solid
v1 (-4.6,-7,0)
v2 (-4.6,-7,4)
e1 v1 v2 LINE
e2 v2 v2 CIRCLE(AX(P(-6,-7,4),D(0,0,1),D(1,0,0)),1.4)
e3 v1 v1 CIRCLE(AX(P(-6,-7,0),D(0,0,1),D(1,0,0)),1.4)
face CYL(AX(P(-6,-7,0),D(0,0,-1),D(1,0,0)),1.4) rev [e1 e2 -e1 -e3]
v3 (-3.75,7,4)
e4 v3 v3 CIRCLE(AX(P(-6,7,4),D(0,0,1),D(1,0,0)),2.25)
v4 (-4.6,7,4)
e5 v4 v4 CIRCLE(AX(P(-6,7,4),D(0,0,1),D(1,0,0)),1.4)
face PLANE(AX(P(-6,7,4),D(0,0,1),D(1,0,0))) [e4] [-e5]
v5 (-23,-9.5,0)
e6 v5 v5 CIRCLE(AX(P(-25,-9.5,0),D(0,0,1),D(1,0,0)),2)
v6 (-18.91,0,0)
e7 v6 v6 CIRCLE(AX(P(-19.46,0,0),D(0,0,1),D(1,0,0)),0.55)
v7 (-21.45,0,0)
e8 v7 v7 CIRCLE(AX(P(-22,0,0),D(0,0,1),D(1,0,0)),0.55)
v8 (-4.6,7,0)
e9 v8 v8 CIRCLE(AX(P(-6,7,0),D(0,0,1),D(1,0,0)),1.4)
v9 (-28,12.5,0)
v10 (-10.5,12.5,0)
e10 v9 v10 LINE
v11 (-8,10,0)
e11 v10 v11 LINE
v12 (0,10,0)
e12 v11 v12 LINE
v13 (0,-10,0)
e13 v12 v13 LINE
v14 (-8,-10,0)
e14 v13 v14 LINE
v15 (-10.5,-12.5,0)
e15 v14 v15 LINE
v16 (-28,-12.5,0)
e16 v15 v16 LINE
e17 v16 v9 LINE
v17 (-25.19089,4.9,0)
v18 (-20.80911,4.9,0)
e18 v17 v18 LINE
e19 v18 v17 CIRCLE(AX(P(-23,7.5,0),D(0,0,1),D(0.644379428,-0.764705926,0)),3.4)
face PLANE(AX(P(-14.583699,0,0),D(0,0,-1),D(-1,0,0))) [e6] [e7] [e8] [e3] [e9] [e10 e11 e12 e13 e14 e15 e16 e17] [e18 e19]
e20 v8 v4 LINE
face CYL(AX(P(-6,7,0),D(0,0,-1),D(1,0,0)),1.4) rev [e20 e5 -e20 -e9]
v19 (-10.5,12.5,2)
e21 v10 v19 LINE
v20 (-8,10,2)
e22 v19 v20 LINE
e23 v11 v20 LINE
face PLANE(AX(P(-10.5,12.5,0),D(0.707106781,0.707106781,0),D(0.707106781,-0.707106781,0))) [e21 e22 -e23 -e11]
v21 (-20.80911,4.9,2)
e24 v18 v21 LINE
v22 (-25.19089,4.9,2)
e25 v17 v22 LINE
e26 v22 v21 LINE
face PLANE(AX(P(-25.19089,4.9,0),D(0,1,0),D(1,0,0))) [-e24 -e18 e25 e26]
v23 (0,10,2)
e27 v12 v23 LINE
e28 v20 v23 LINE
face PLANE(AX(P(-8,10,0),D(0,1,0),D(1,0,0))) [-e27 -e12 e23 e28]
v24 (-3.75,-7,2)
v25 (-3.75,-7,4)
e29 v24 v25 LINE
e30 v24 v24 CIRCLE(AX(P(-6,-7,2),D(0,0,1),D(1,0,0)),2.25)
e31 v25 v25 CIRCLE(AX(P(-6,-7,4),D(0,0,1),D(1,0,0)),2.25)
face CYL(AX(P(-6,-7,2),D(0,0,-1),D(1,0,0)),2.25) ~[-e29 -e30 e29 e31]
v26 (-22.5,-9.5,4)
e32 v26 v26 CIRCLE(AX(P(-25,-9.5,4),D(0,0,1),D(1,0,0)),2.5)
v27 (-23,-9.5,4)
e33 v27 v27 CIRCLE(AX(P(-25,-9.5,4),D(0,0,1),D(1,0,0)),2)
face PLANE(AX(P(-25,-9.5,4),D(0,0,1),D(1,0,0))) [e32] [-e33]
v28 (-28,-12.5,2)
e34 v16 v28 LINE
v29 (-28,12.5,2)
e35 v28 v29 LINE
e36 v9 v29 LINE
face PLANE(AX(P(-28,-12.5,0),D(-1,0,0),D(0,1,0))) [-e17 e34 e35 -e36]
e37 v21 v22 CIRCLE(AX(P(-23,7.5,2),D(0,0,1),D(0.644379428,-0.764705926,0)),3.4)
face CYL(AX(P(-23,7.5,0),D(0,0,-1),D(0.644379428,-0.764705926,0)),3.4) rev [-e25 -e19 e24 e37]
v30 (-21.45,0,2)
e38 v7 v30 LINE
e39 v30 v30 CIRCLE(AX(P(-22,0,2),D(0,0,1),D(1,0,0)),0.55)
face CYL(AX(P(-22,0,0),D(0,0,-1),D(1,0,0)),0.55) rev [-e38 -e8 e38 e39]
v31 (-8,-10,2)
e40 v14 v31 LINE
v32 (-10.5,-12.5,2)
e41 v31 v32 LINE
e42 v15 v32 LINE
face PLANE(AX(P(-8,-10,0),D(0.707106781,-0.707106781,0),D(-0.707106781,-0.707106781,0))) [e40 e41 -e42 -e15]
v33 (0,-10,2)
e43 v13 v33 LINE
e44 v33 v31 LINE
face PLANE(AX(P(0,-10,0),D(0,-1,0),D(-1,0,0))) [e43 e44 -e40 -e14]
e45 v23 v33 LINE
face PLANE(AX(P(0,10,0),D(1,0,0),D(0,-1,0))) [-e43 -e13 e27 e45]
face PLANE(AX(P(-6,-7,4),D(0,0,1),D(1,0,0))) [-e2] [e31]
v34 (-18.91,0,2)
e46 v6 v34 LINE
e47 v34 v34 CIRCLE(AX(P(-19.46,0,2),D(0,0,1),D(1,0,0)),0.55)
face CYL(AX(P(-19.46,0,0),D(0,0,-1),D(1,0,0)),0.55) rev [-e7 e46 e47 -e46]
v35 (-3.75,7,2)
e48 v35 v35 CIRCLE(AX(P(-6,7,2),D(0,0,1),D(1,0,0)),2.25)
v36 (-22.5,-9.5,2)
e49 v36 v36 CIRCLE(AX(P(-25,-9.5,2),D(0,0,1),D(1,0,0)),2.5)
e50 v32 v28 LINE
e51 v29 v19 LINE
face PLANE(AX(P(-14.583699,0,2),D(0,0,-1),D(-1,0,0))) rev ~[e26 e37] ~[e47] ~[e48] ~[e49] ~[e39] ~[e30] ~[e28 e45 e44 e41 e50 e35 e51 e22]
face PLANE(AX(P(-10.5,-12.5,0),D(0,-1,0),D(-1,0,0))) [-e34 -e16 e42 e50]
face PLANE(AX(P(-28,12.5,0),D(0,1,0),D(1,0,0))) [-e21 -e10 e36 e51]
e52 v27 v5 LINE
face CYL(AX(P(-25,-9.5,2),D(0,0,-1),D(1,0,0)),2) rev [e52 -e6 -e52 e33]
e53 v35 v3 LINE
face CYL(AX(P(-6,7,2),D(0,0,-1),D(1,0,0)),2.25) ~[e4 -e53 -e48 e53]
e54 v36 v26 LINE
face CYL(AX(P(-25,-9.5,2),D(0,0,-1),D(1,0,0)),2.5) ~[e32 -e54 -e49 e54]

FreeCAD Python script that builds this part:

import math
import FreeCAD as App
import Part
import Sketcher
Q = App.Units.Quantity

doc = App.newDocument("Part")
body = doc.addObject("PartDesign::Body", "Body")

sketch1 = doc.addObject("Sketcher::SketchObject", "Sketch")
body.addObject(sketch1)
sketch1.AttachmentSupport = (doc.XY_Plane, [""])
sketch1.MapMode = "FlatFace"
sketch1.addGeometry([
    Part.LineSegment(App.Vector(0, -10, 0), App.Vector(0, 10, 0)),
    Part.LineSegment(App.Vector(0, 10, 0), App.Vector(-8, 10, 0)),
    Part.LineSegment(App.Vector(-8, 10, 0), App.Vector(-10.5, 12.5, 0)),
    Part.LineSegment(App.Vector(-10.5, 12.5, 0), App.Vector(-28, 12.5, 0)),
    Part.LineSegment(App.Vector(-28, 12.5, 0), App.Vector(-28, -12.5, 0)),
    Part.LineSegment(App.Vector(-28, -12.5, 0), App.Vector(-10.5, -12.5, 0)),
    Part.LineSegment(App.Vector(-10.5, -12.5, 0), App.Vector(-8, -10, 0)),
    Part.LineSegment(App.Vector(-8, -10, 0), App.Vector(0, -10, 0)),
    Part.Circle(App.Vector(-6, -7, 0), App.Vector(0, 0, 1), 1.4),
    Part.Circle(App.Vector(-25, -9.5, 0), App.Vector(0, 0, 1), 2),
    Part.Circle(App.Vector(-6, 7, 0), App.Vector(0, 0, 1), 1.4),
    Part.Circle(App.Vector(-19.5, 0, 0), App.Vector(0, 0, 1), 0.6),
    Part.Circle(App.Vector(-22, 0, 0), App.Vector(0, 0, 1), 0.6),
    Part.LineSegment(App.Vector(-20.8, 4.9, 0), App.Vector(-25.2, 4.9, 0)),
    Part.ArcOfCircle(Part.Circle(App.Vector(-23, 7.5, 0), App.Vector(0, 0, 1), 3.4), math.radians(-50), math.radians(230)),
], False)
sketch1.addConstraint([
    Sketcher.Constraint("Coincident", 0, 2, 1, 1),
    Sketcher.Constraint("Coincident", 1, 2, 2, 1),
    Sketcher.Constraint("Coincident", 2, 2, 3, 1),
    Sketcher.Constraint("Coincident", 3, 2, 4, 1),
    Sketcher.Constraint("Coincident", 4, 2, 5, 1),
    Sketcher.Constraint("Coincident", 5, 2, 6, 1),
    Sketcher.Constraint("Coincident", 6, 2, 7, 1),
    Sketcher.Constraint("Coincident", 7, 2, 0, 1),
    Sketcher.Constraint("Coincident", 13, 1, 14, 1),
    Sketcher.Constraint("Coincident", 14, 2, 13, 2),
    Sketcher.Constraint("Vertical", 0),
    Sketcher.Constraint("Horizontal", 1),
    Sketcher.Constraint("Horizontal", 3),
    Sketcher.Constraint("Vertical", 4),
    Sketcher.Constraint("Horizontal", 5),
    Sketcher.Constraint("Horizontal", 7),
    Sketcher.Constraint("Horizontal", 13),
    Sketcher.Constraint("Equal", 8, 10),
    Sketcher.Constraint("Equal", 11, 12),
    Sketcher.Constraint("Symmetric", 0, 2, 7, 2, -1, 1),
    Sketcher.Constraint("Symmetric", 8, 3, 10, 3, -1),
    Sketcher.Constraint("Symmetric", 2, 2, 5, 2, -1),
    Sketcher.Constraint("PointOnObject", 11, 3, -1),
    Sketcher.Constraint("PointOnObject", 12, 3, -1),
    Sketcher.Constraint("Perpendicular", 2, 6),
    Sketcher.Constraint("Vertical", 1, 2, 6, 2),
    Sketcher.Constraint("Diameter", 9, Q("4 mm")),
    Sketcher.Constraint("Diameter", 8, Q("2.8 mm")),
    Sketcher.Constraint("Diameter", 11, Q("1.1 mm")),
    Sketcher.Constraint("Radius", 14, Q("3.4 mm")),
    Sketcher.Constraint("DistanceX", 1, 2, 1, 1, Q("8 mm")),
    Sketcher.Constraint("DistanceY", 0, 1, 0, 2, Q("20 mm")),
    Sketcher.Constraint("DistanceY", 4, 2, 4, 1, Q("25 mm")),
    Sketcher.Constraint("DistanceX", 3, 2, 3, 1, Q("17.5 mm")),
    Sketcher.Constraint("DistanceX", 8, 3, -1, 1, Q("6 mm")),
    Sketcher.Constraint("DistanceY", 8, 3, -1, 1, Q("7 mm")),
    Sketcher.Constraint("DistanceX", 9, 3, -1, 1, Q("25 mm")),
    Sketcher.Constraint("DistanceX", 12, 3, -1, 1, Q("22 mm")),
    Sketcher.Constraint("DistanceX", 14, 3, -1, 1, Q("23 mm")),
    Sketcher.Constraint("DistanceY", 9, 3, 14, 3, Q("17 mm")),
    Sketcher.Constraint("DistanceY", 14, 3, 2, 2, Q("5 mm")),
    Sketcher.Constraint("DistanceY", -1, 1, 13, 1, Q("4.9 mm")),
    Sketcher.Constraint("DistanceX", 11, 3, -1, 1, Q("19.46 mm")),
])
pad1 = doc.addObject("PartDesign::Pad", "Pad")
body.addObject(pad1)
pad1.Profile = sketch1
pad1.Length = 2

sketch2 = doc.addObject("Sketcher::SketchObject", "Sketch001")
body.addObject(sketch2)
sketch2.AttachmentSupport = (doc.XY_Plane, [""])
sketch2.MapMode = "FlatFace"
sketch2.AttachmentOffset = App.Placement(App.Vector(0, 0, 2), App.Rotation())
sketch2.addGeometry([
    Part.Circle(App.Vector(-25, -9.5, 0), App.Vector(0, 0, 1), 2.5),
    Part.Circle(App.Vector(-25, -9.5, 0), App.Vector(0, 0, 1), 2),
    Part.Circle(App.Vector(-6, -7, 0), App.Vector(0, 0, 1), 2.2),
    Part.Circle(App.Vector(-6, -7, 0), App.Vector(0, 0, 1), 1.4),
    Part.Circle(App.Vector(-6, 7, 0), App.Vector(0, 0, 1), 2.2),
    Part.Circle(App.Vector(-6, 7, 0), App.Vector(0, 0, 1), 1.4),
], False)
sketch2.addConstraint([
    Sketcher.Constraint("Coincident", 1, 3, 0, 3),
    Sketcher.Constraint("Coincident", 3, 3, 2, 3),
    Sketcher.Constraint("Coincident", 5, 3, 4, 3),
    Sketcher.Constraint("Equal", 2, 4),
    Sketcher.Constraint("Equal", 3, 5),
    Sketcher.Constraint("Symmetric", 2, 3, 4, 3, -1),
    Sketcher.Constraint("Diameter", 0, Q("5 mm")),
    Sketcher.Constraint("Diameter", 1, Q("4 mm")),
    Sketcher.Constraint("Diameter", 2, Q("4.5 mm")),
    Sketcher.Constraint("Diameter", 3, Q("2.8 mm")),
    Sketcher.Constraint("DistanceX", 0, 3, -1, 1, Q("25 mm")),
    Sketcher.Constraint("DistanceX", 2, 3, -1, 1, Q("6 mm")),
    Sketcher.Constraint("DistanceY", 2, 3, -1, 1, Q("7 mm")),
    Sketcher.Constraint("DistanceY", 0, 3, -1, 1, Q("9.5 mm")),
])
pad2 = doc.addObject("PartDesign::Pad", "Pad001")
body.addObject(pad2)
pad2.Profile = sketch2
pad2.Length = 2

doc.recompute()
